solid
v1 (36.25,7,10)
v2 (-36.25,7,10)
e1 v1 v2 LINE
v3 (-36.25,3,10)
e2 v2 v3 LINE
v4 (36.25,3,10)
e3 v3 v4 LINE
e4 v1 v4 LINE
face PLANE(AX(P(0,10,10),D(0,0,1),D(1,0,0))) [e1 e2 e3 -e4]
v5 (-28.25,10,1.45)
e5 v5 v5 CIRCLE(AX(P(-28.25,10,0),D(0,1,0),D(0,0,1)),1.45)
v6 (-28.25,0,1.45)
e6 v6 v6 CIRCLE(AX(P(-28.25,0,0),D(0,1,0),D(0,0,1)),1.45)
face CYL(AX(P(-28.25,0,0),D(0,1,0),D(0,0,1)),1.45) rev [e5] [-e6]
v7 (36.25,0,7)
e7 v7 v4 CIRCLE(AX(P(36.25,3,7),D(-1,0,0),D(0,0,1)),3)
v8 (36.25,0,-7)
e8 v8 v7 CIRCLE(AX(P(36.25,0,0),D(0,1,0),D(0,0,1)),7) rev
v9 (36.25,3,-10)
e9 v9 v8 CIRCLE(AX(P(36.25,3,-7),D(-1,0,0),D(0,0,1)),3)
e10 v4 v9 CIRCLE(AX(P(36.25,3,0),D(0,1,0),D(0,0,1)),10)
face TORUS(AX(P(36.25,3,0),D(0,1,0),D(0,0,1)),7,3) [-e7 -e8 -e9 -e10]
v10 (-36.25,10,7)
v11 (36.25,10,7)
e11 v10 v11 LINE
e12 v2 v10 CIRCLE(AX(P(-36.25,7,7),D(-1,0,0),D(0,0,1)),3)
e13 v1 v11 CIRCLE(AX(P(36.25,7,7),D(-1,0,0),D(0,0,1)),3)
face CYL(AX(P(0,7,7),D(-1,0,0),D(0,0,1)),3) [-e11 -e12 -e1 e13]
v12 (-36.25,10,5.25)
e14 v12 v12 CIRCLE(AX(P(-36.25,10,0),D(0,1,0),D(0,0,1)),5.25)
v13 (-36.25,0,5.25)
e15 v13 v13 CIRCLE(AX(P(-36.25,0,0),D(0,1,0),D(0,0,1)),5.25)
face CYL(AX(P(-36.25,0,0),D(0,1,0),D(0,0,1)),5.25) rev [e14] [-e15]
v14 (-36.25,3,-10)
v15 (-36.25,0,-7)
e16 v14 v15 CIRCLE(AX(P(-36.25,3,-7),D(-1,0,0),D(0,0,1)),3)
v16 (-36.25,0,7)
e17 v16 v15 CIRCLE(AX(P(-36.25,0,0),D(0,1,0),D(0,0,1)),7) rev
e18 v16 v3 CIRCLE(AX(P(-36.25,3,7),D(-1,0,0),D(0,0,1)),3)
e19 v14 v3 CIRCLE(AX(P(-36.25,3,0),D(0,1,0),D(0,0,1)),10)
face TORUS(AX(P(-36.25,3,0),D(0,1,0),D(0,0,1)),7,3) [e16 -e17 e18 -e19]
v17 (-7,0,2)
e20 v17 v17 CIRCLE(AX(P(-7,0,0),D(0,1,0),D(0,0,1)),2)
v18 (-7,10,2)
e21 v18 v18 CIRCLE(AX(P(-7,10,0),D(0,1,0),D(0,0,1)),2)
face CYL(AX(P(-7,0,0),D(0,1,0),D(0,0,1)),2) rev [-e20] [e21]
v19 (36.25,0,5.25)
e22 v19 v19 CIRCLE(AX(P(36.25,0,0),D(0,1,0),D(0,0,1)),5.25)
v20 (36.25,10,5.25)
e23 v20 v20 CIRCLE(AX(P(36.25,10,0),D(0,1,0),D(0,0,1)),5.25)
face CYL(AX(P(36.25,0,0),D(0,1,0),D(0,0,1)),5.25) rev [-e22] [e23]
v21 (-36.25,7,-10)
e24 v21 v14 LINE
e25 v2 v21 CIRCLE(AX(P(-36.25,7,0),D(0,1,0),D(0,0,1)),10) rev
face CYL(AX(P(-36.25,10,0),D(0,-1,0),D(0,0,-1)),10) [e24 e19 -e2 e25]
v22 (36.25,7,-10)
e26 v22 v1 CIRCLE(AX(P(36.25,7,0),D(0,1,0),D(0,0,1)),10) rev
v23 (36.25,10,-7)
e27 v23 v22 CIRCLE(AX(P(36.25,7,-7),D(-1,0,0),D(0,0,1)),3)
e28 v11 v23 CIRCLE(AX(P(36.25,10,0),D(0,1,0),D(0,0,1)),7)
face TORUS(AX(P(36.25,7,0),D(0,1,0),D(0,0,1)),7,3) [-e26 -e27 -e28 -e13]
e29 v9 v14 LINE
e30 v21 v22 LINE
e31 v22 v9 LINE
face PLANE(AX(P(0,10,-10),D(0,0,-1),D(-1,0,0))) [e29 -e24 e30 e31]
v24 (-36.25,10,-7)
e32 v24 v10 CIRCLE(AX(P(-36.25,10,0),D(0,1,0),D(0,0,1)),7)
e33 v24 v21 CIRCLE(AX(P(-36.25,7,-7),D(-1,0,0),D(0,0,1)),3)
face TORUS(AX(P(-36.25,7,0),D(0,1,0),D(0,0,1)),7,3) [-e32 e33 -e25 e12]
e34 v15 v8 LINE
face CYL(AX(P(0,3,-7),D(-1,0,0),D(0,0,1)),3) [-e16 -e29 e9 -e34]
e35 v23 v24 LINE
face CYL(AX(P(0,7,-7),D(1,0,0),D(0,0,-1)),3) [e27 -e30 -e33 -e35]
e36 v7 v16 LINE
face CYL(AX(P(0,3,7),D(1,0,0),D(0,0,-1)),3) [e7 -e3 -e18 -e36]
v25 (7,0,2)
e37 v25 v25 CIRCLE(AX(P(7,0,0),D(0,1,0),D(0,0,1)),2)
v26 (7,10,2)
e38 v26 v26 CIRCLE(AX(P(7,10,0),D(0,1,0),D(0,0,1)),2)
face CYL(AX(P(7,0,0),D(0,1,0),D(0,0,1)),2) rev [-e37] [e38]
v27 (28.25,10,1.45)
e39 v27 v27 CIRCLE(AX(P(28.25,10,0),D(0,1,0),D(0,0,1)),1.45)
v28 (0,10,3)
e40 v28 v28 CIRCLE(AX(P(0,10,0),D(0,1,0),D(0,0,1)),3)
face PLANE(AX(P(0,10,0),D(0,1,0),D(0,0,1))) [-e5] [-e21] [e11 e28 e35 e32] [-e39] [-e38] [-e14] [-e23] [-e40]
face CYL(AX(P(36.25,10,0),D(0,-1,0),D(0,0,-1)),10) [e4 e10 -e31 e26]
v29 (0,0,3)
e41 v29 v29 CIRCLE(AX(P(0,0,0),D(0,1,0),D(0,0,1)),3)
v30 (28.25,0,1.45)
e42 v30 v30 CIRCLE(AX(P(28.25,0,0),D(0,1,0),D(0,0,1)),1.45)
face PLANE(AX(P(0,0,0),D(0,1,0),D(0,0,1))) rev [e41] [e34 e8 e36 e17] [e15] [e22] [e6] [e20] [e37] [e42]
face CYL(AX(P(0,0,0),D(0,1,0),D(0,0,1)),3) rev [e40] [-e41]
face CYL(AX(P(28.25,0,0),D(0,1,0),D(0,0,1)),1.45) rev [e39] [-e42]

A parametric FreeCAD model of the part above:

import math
import FreeCAD as App
import Part
import Sketcher
from FreeCAD import Vector
Q = App.Units.Quantity


def edges_at(feature, points):
    """Names of the edges that pass closest to the given points."""
    edges = feature.Shape.Edges
    near = lambda p: min(range(len(edges)), key=lambda i: edges[i].distToShape(Part.Vertex(*p))[0])
    return sorted({f"Edge{near(p) + 1}" for p in points})

doc = App.newDocument("Part")
params = doc.addObject("Spreadsheet::Sheet", "Params")
for row, (alias, value) in enumerate([
    ("sketch1_diameter", "10 mm"),
    ("sketch1_radius", "10 mm"),
    ("sketch1_width", "72.5 mm"),
    ("pad1_length", "10 mm"),
    ("fillet_radius", "3 mm"),
    ("sketch2_diameter", "10 mm"),
    ("pad2_length", "10 mm"),
    ("sketch3_diameter", "10 mm"),
    ("sketch3_diameter2", "9 mm"),
    ("pad3_length", "10 mm"),
    ("sketch4_diameter", "4 mm"),
    ("pocket1_length", "10 mm"),
    ("sketch5_diameter", "6 mm"),
    ("pocket2_length", "10 mm"),
    ("sketch6_diameter", "9.3 mm"),
    ("pocket3_length", "17 mm"),
    ("sketch7_diameter", "10.5 mm"),
    ("sketch7_diameter2", "9.3 mm"),
    ("pocket4_length", "10 mm"),
    ("sketch8_diameter", "2.9 mm"),
    ("pocket5_length", "10 mm"),
], start=1):
    params.set(f"A{row}", alias)
    params.set(f"B{row}", "=" + value)
    params.setAlias(f"B{row}", alias)

body = doc.addObject("PartDesign::Body", "Body")

# Sketch on XZ plane
sketch1 = body.newObject("Sketcher::SketchObject", "Sketch")
sketch1.AttachmentSupport = (doc.getObject("XZ_Plane"), [""])
sketch1.MapMode = "FlatFace"
sketch1.addGeometry(Part.LineSegment(Vector(36, -10, 0), Vector(-36, -10, 0)), False)
sketch1.addGeometry(Part.ArcOfCircle(Part.Circle(Vector(-36, 0, 0), Vector(0, 0, 1), 10), math.radians(90), math.radians(270)), False)
sketch1.addGeometry(Part.LineSegment(Vector(-36, 10, 0), Vector(36, 10, 0)), False)
sketch1.addGeometry(Part.ArcOfCircle(Part.Circle(Vector(36, 0, 0), Vector(0, 0, 1), 10), math.radians(-90), math.radians(90)), False)
sketch1.addGeometry(Part.Circle(Vector(-36, 0, 0), Vector(0, 0, 1), 5), False)
sketch1.addGeometry(Part.ArcOfCircle(Part.Circle(Vector(0, 0, 0), Vector(0, 0, 1), 5), math.radians(-90), math.radians(0)), False)
sketch1.addGeometry(Part.ArcOfCircle(Part.Circle(Vector(0, 0, 0), Vector(0, 0, 1), 5), math.radians(0), math.radians(90)), False)
sketch1.addGeometry(Part.ArcOfCircle(Part.Circle(Vector(0, 0, 0), Vector(0, 0, 1), 5), math.radians(90), math.radians(270)), False)
sketch1.addGeometry(Part.Circle(Vector(36, 0, 0), Vector(0, 0, 1), 5), False)
sketch1.addConstraint(Sketcher.Constraint("Tangent", 0, 2, 1, 2))
sketch1.addConstraint(Sketcher.Constraint("Tangent", 1, 1, 2, 1))
sketch1.addConstraint(Sketcher.Constraint("Tangent", 2, 2, 3, 2))
sketch1.addConstraint(Sketcher.Constraint("Tangent", 3, 1, 0, 1))
sketch1.addConstraint(Sketcher.Constraint("Tangent", 5, 2, 6, 1))
sketch1.addConstraint(Sketcher.Constraint("Tangent", 6, 2, 7, 1))
sketch1.addConstraint(Sketcher.Constraint("Tangent", 7, 2, 5, 1))
sketch1.addConstraint(Sketcher.Constraint("Horizontal", 0))
sketch1.addConstraint(Sketcher.Constraint("Horizontal", 2))
sketch1.addConstraint(Sketcher.Constraint("Coincident", 5, 3, -1, 1))
sketch1.addConstraint(Sketcher.Constraint("Coincident", 4, 3, 1, 3))
sketch1.addConstraint(Sketcher.Constraint("Coincident", 8, 3, 3, 3))
sketch1.addConstraint(Sketcher.Constraint("Equal", 4, 5))
sketch1.addConstraint(Sketcher.Constraint("Equal", 7, 8))
sketch1.addConstraint(Sketcher.Constraint("Symmetric", 1, 3, 3, 3, -1, 1))
sketch1.addConstraint(Sketcher.Constraint("PointOnObject", 5, 2, -1))
sketch1.addConstraint(Sketcher.Constraint("PointOnObject", 6, 2, -2))
sketch1.addConstraint(Sketcher.Constraint("PointOnObject", 7, 2, -2))
sketch1.addConstraint(Sketcher.Constraint("Diameter", 4, Q("10 mm")))
sketch1.addConstraint(Sketcher.Constraint("Radius", 1, Q("10 mm")))
sketch1.addConstraint(Sketcher.Constraint("DistanceX", 0, 2, 0, 1, Q("72.5 mm")))
sketch1.setExpression("Constraints[18]", "Params.sketch1_diameter")
sketch1.setExpression("Constraints[19]", "Params.sketch1_radius")
sketch1.setExpression("Constraints[20]", "Params.sketch1_width")
pad1 = body.newObject("PartDesign::Pad", "Pad")
pad1.Profile = sketch1
pad1.setExpression("Length", "Params.pad1_length")
pad1.Reversed = True
doc.recompute()

fillet = body.newObject("PartDesign::Fillet", "Fillet")
fillet.Base = (pad1, edges_at(pad1, [
    (46.25, 0, 0),
    (0, 0, 10),
    (0, 10, 10),
    (46.25, 10, 0),
    (0, 10, -10),
    (-46.25, 10, 0),
    (-46.25, 0, 0),
    (0, 0, -10),
]))
fillet.setExpression("Radius", "Params.fillet_radius")

# Sketch on XZ plane
sketch2 = body.newObject("Sketcher::SketchObject", "Sketch001")
sketch2.AttachmentSupport = (doc.getObject("XZ_Plane"), [""])
sketch2.MapMode = "FlatFace"
sketch2.AttachmentOffset = App.Placement(Vector(0, 0, -10), App.Rotation())
sketch2.addGeometry(Part.Circle(Vector(0, 0, 0), Vector(0, 0, 1), 5), False)
sketch2.addConstraint(Sketcher.Constraint("Coincident", 0, 3, -1, 1))
sketch2.addConstraint(Sketcher.Constraint("Diameter", 0, Q("10 mm")))
sketch2.setExpression("Constraints[1]", "Params.sketch2_diameter")
pad2 = body.newObject("PartDesign::Pad", "Pad001")
pad2.Profile = sketch2
pad2.setExpression("Length", "Params.pad2_length")

# Sketch on XZ plane
sketch3 = body.newObject("Sketcher::SketchObject", "Sketch002")
sketch3.AttachmentSupport = (doc.getObject("XZ_Plane"), [""])
sketch3.MapMode = "FlatFace"
sketch3.AttachmentOffset = App.Placement(Vector(0, 0, -10), App.Rotation())
sketch3.addGeometry(Part.Circle(Vector(-36.2, 0, 0), Vector(0, 0, 1), 5), False)
sketch3.addGeometry(Part.Circle(Vector(-36.2, 0, 0), Vector(0, 0, 1), 4.5), False)
sketch3.addGeometry(Part.Circle(Vector(36.2, 0, 0), Vector(0, 0, 1), 5), False)
sketch3.addGeometry(Part.Circle(Vector(36.2, 0, 0), Vector(0, 0, 1), 4.5), False)
sketch3.addConstraint(Sketcher.Constraint("Coincident", 1, 3, 0, 3))
sketch3.addConstraint(Sketcher.Constraint("Coincident", 3, 3, 2, 3))
sketch3.addConstraint(Sketcher.Constraint("Equal", 0, 2))
sketch3.addConstraint(Sketcher.Constraint("Equal", 1, 3))
sketch3.addConstraint(Sketcher.Constraint("Symmetric", 0, 3, 2, 3, -1, 1))
sketch3.addConstraint(Sketcher.Constraint("PointOnObject", 0, 3, -1))
sketch3.addConstraint(Sketcher.Constraint("Diameter", 0, Q("10 mm")))
sketch3.addConstraint(Sketcher.Constraint("Diameter", 1, Q("9 mm")))
sketch3.addConstraint(Sketcher.Constraint("DistanceX", 0, 3, 2, 3, Q("72.5 mm")))
sketch3.setExpression("Constraints[6]", "Params.sketch3_diameter")
sketch3.setExpression("Constraints[7]", "Params.sketch3_diameter2")
pad3 = body.newObject("PartDesign::Pad", "Pad002")
pad3.Profile = sketch3
pad3.setExpression("Length", "Params.pad3_length")

# Sketch on XZ plane
sketch4 = body.newObject("Sketcher::SketchObject", "Sketch003")
sketch4.AttachmentSupport = (doc.getObject("XZ_Plane"), [""])
sketch4.MapMode = "FlatFace"
sketch4.AttachmentOffset = App.Placement(Vector(0, 0, -10), App.Rotation())
sketch4.addGeometry(Part.Circle(Vector(-7, 0, 0), Vector(0, 0, 1), 2), False)
sketch4.addGeometry(Part.Circle(Vector(7, 0, 0), Vector(0, 0, 1), 2), False)
sketch4.addConstraint(Sketcher.Constraint("Equal", 0, 1))
sketch4.addConstraint(Sketcher.Constraint("Symmetric", 0, 3, 1, 3, -1, 1))
sketch4.addConstraint(Sketcher.Constraint("PointOnObject", 0, 3, -1))
sketch4.addConstraint(Sketcher.Constraint("Diameter", 0, Q("4 mm")))
sketch4.addConstraint(Sketcher.Constraint("DistanceX", 0, 3, -1, 1, Q("7 mm")))
sketch4.setExpression("Constraints[3]", "Params.sketch4_diameter")
pocket1 = body.newObject("PartDesign::Pocket", "Pocket")
pocket1.Profile = sketch4
pocket1.setExpression("Length", "Params.pocket1_length")
pocket1.Reversed = True

# Sketch on XZ plane
sketch5 = body.newObject("Sketcher::SketchObject", "Sketch004")
sketch5.AttachmentSupport = (doc.getObject("XZ_Plane"), [""])
sketch5.MapMode = "FlatFace"
sketch5.AttachmentOffset = App.Placement(Vector(0, 0, -10), App.Rotation())
sketch5.addGeometry(Part.Circle(Vector(0, 0, 0), Vector(0, 0, 1), 3), False)
sketch5.addConstraint(Sketcher.Constraint("Coincident", 0, 3, -1, 1))
sketch5.addConstraint(Sketcher.Constraint("Diameter", 0, Q("6 mm")))
sketch5.setExpression("Constraints[1]", "Params.sketch5_diameter")
pocket2 = body.newObject("PartDesign::Pocket", "Pocket001")
pocket2.Profile = sketch5
pocket2.setExpression("Length", "Params.pocket2_length")
pocket2.Reversed = True

# Sketch on XZ plane
sketch6 = body.newObject("Sketcher::SketchObject", "Sketch005")
sketch6.AttachmentSupport = (doc.getObject("XZ_Plane"), [""])
sketch6.MapMode = "FlatFace"
sketch6.AttachmentOffset = App.Placement(Vector(0, 0, -10), App.Rotation())
sketch6.addGeometry(Part.Circle(Vector(-36.2, 0, 0), Vector(0, 0, 1), 4.7), False)
sketch6.addGeometry(Part.Circle(Vector(36.2, 0, 0), Vector(0, 0, 1), 4.7), False)
sketch6.addConstraint(Sketcher.Constraint("Equal", 0, 1))
sketch6.addConstraint(Sketcher.Constraint("Symmetric", 0, 3, 1, 3, -1, 1))
sketch6.addConstraint(Sketcher.Constraint("PointOnObject", 0, 3, -1))
sketch6.addConstraint(Sketcher.Constraint("Diameter", 0, Q("9.3 mm")))
sketch6.addConstraint(Sketcher.Constraint("DistanceX", 0, 3, 1, 3, Q("72.5 mm")))
sketch6.setExpression("Constraints[3]", "Params.sketch6_diameter")
pocket3 = body.newObject("PartDesign::Pocket", "Pocket002")
pocket3.Profile = sketch6
pocket3.setExpression("Length", "Params.pocket3_length")
pocket3.Reversed = True

# Sketch on XZ plane
sketch7 = body.newObject("Sketcher::SketchObject", "Sketch006")
sketch7.AttachmentSupport = (doc.getObject("XZ_Plane"), [""])
sketch7.MapMode = "FlatFace"
sketch7.AttachmentOffset = App.Placement(Vector(0, 0, -10), App.Rotation())
sketch7.addGeometry(Part.Circle(Vector(-36.2, 0, 0), Vector(0, 0, 1), 5.2), False)
sketch7.addGeometry(Part.Circle(Vector(-36.2, 0, 0), Vector(0, 0, 1), 4.7), False)
sketch7.addGeometry(Part.Circle(Vector(36.2, 0, 0), Vector(0, 0, 1), 5.2), False)
sketch7.addGeometry(Part.Circle(Vector(36.2, 0, 0), Vector(0, 0, 1), 4.7), False)
sketch7.addConstraint(Sketcher.Constraint("Coincident", 1, 3, 0, 3))
sketch7.addConstraint(Sketcher.Constraint("Coincident", 3, 3, 2, 3))
sketch7.addConstraint(Sketcher.Constraint("Equal", 0, 2))
sketch7.addConstraint(Sketcher.Constraint("Equal", 1, 3))
sketch7.addConstraint(Sketcher.Constraint("Symmetric", 0, 3, 2, 3, -1, 1))
sketch7.addConstraint(Sketcher.Constraint("PointOnObject", 0, 3, -1))
sketch7.addConstraint(Sketcher.Constraint("Diameter", 0, Q("10.5 mm")))
sketch7.addConstraint(Sketcher.Constraint("Diameter", 1, Q("9.3 mm")))
sketch7.addConstraint(Sketcher.Constraint("DistanceX", 0, 3, 2, 3, Q("72.5 mm")))
sketch7.setExpression("Constraints[6]", "Params.sketch7_diameter")
sketch7.setExpression("Constraints[7]", "Params.sketch7_diameter2")
pocket4 = body.newObject("PartDesign::Pocket", "Pocket003")
pocket4.Profile = sketch7
pocket4.setExpression("Length", "Params.pocket4_length")
pocket4.Reversed = True

# Sketch on XZ plane
sketch8 = body.newObject("Sketcher::SketchObject", "Sketch007")
sketch8.AttachmentSupport = (doc.getObject("XZ_Plane"), [""])
sketch8.MapMode = "FlatFace"
sketch8.AttachmentOffset = App.Placement(Vector(0, 0, -10), App.Rotation())
sketch8.addGeometry(Part.Circle(Vector(-28.2, 0, 0), Vector(0, 0, 1), 1.4), False)
sketch8.addGeometry(Part.Circle(Vector(28.2, 0, 0), Vector(0, 0, 1), 1.4), False)
sketch8.addConstraint(Sketcher.Constraint("Equal", 0, 1))
sketch8.addConstraint(Sketcher.Constraint("Symmetric", 0, 3, 1, 3, -1, 1))
sketch8.addConstraint(Sketcher.Constraint("PointOnObject", 0, 3, -1))
sketch8.addConstraint(Sketcher.Constraint("Diameter", 0, Q("2.9 mm")))
sketch8.addConstraint(Sketcher.Constraint("DistanceX", 0, 3, 1, 3, Q("56.5 mm")))
sketch8.setExpression("Constraints[3]", "Params.sketch8_diameter")
pocket5 = body.newObject("PartDesign::Pocket", "Pocket004")
pocket5.Profile = sketch8
pocket5.setExpression("Length", "Params.pocket5_length")
pocket5.Reversed = True

doc.recompute()
